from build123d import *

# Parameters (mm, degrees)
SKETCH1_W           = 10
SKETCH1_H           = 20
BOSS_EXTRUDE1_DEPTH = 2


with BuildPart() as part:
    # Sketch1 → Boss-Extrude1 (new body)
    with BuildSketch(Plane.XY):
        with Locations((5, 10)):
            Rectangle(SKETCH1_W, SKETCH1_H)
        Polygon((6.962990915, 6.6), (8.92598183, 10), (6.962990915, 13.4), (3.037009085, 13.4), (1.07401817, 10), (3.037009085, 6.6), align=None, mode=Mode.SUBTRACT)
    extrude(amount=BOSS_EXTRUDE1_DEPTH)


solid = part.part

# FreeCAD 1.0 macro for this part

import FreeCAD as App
import Part
import Sketcher

V = App.Vector
Q = App.Units.Quantity


def add_polygon(sketch, points):
    """Adds a closed chain of lines whose ends are joined by coincident constraints."""
    first, n = sketch.GeometryCount, len(points)
    for a, b in zip(points, points[1:] + points[:1]):
        sketch.addGeometry(Part.LineSegment(App.Vector(*a, 0), App.Vector(*b, 0)), False)
    for i in range(n):
        sketch.addConstraint(Sketcher.Constraint("Coincident", first + i, 2, first + (i + 1) % n, 1))

doc = App.newDocument("Part")
body = doc.addObject("PartDesign::Body", "Body")

# Sketch on XY plane
sketch1 = body.newObject("Sketcher::SketchObject", "Sketch")
sketch1.AttachmentSupport = (doc.getObject("XY_Plane"), [""])
sketch1.MapMode = "FlatFace"
add_polygon(sketch1, [(0, 20), (0, 0), (10, 0), (10, 20)])  # lines 0-3
add_polygon(sketch1, [(8.925982, 10), (6.962991, 6.6), (3.037009, 6.6), (1.074018, 10), (3.037009, 13.4), (6.962991, 13.4)])  # lines 4-9
sketch1.addConstraint(Sketcher.Constraint("Vertical", 0))
sketch1.addConstraint(Sketcher.Constraint("Horizontal", 1))
sketch1.addConstraint(Sketcher.Constraint("Vertical", 2))
sketch1.addConstraint(Sketcher.Constraint("Horizontal", 3))
sketch1.addConstraint(Sketcher.Constraint("Horizontal", 5))
sketch1.addConstraint(Sketcher.Constraint("Horizontal", 8))
sketch1.addConstraint(Sketcher.Constraint("Coincident", 0, 2, -1, 1))
sketch1.addConstraint(Sketcher.Constraint("Parallel", 4, 7))
sketch1.addConstraint(Sketcher.Constraint("Parallel", 6, 9))
sketch1.addConstraint(Sketcher.Constraint("Horizontal", 6, 2, 9, 2))
sketch1.addConstraint(Sketcher.Constraint("Vertical", 5, 2, 7, 2))
sketch1.addConstraint(Sketcher.Constraint("Vertical", 4, 2, 8, 2))
sketch1.addConstraint(Sketcher.Constraint("DistanceX", 1, 1, 1, 2, Q("10 mm")))
sketch1.addConstraint(Sketcher.Constraint("DistanceY", 0, 2, 0, 1, Q("20 mm")))
sketch1.addConstraint(Sketcher.Constraint("Angle", 4, Q("-120 deg")))
sketch1.addConstraint(Sketcher.Constraint("DistanceY", -1, 1, 6, 2, Q("10 mm")))
sketch1.addConstraint(Sketcher.Constraint("DistanceY", -1, 1, 4, 2, Q("6.6 mm")))
sketch1.addConstraint(Sketcher.Constraint("DistanceX", 5, 2, 5, 1, Q("3.925982 mm")))
sketch1.addConstraint(Sketcher.Constraint("DistanceX", -1, 1, 4, 2, Q("6.962991 mm")))
pad1 = body.newObject("PartDesign::Pad", "Pad")
pad1.Profile = sketch1
pad1.Length = 2

doc.recompute()
